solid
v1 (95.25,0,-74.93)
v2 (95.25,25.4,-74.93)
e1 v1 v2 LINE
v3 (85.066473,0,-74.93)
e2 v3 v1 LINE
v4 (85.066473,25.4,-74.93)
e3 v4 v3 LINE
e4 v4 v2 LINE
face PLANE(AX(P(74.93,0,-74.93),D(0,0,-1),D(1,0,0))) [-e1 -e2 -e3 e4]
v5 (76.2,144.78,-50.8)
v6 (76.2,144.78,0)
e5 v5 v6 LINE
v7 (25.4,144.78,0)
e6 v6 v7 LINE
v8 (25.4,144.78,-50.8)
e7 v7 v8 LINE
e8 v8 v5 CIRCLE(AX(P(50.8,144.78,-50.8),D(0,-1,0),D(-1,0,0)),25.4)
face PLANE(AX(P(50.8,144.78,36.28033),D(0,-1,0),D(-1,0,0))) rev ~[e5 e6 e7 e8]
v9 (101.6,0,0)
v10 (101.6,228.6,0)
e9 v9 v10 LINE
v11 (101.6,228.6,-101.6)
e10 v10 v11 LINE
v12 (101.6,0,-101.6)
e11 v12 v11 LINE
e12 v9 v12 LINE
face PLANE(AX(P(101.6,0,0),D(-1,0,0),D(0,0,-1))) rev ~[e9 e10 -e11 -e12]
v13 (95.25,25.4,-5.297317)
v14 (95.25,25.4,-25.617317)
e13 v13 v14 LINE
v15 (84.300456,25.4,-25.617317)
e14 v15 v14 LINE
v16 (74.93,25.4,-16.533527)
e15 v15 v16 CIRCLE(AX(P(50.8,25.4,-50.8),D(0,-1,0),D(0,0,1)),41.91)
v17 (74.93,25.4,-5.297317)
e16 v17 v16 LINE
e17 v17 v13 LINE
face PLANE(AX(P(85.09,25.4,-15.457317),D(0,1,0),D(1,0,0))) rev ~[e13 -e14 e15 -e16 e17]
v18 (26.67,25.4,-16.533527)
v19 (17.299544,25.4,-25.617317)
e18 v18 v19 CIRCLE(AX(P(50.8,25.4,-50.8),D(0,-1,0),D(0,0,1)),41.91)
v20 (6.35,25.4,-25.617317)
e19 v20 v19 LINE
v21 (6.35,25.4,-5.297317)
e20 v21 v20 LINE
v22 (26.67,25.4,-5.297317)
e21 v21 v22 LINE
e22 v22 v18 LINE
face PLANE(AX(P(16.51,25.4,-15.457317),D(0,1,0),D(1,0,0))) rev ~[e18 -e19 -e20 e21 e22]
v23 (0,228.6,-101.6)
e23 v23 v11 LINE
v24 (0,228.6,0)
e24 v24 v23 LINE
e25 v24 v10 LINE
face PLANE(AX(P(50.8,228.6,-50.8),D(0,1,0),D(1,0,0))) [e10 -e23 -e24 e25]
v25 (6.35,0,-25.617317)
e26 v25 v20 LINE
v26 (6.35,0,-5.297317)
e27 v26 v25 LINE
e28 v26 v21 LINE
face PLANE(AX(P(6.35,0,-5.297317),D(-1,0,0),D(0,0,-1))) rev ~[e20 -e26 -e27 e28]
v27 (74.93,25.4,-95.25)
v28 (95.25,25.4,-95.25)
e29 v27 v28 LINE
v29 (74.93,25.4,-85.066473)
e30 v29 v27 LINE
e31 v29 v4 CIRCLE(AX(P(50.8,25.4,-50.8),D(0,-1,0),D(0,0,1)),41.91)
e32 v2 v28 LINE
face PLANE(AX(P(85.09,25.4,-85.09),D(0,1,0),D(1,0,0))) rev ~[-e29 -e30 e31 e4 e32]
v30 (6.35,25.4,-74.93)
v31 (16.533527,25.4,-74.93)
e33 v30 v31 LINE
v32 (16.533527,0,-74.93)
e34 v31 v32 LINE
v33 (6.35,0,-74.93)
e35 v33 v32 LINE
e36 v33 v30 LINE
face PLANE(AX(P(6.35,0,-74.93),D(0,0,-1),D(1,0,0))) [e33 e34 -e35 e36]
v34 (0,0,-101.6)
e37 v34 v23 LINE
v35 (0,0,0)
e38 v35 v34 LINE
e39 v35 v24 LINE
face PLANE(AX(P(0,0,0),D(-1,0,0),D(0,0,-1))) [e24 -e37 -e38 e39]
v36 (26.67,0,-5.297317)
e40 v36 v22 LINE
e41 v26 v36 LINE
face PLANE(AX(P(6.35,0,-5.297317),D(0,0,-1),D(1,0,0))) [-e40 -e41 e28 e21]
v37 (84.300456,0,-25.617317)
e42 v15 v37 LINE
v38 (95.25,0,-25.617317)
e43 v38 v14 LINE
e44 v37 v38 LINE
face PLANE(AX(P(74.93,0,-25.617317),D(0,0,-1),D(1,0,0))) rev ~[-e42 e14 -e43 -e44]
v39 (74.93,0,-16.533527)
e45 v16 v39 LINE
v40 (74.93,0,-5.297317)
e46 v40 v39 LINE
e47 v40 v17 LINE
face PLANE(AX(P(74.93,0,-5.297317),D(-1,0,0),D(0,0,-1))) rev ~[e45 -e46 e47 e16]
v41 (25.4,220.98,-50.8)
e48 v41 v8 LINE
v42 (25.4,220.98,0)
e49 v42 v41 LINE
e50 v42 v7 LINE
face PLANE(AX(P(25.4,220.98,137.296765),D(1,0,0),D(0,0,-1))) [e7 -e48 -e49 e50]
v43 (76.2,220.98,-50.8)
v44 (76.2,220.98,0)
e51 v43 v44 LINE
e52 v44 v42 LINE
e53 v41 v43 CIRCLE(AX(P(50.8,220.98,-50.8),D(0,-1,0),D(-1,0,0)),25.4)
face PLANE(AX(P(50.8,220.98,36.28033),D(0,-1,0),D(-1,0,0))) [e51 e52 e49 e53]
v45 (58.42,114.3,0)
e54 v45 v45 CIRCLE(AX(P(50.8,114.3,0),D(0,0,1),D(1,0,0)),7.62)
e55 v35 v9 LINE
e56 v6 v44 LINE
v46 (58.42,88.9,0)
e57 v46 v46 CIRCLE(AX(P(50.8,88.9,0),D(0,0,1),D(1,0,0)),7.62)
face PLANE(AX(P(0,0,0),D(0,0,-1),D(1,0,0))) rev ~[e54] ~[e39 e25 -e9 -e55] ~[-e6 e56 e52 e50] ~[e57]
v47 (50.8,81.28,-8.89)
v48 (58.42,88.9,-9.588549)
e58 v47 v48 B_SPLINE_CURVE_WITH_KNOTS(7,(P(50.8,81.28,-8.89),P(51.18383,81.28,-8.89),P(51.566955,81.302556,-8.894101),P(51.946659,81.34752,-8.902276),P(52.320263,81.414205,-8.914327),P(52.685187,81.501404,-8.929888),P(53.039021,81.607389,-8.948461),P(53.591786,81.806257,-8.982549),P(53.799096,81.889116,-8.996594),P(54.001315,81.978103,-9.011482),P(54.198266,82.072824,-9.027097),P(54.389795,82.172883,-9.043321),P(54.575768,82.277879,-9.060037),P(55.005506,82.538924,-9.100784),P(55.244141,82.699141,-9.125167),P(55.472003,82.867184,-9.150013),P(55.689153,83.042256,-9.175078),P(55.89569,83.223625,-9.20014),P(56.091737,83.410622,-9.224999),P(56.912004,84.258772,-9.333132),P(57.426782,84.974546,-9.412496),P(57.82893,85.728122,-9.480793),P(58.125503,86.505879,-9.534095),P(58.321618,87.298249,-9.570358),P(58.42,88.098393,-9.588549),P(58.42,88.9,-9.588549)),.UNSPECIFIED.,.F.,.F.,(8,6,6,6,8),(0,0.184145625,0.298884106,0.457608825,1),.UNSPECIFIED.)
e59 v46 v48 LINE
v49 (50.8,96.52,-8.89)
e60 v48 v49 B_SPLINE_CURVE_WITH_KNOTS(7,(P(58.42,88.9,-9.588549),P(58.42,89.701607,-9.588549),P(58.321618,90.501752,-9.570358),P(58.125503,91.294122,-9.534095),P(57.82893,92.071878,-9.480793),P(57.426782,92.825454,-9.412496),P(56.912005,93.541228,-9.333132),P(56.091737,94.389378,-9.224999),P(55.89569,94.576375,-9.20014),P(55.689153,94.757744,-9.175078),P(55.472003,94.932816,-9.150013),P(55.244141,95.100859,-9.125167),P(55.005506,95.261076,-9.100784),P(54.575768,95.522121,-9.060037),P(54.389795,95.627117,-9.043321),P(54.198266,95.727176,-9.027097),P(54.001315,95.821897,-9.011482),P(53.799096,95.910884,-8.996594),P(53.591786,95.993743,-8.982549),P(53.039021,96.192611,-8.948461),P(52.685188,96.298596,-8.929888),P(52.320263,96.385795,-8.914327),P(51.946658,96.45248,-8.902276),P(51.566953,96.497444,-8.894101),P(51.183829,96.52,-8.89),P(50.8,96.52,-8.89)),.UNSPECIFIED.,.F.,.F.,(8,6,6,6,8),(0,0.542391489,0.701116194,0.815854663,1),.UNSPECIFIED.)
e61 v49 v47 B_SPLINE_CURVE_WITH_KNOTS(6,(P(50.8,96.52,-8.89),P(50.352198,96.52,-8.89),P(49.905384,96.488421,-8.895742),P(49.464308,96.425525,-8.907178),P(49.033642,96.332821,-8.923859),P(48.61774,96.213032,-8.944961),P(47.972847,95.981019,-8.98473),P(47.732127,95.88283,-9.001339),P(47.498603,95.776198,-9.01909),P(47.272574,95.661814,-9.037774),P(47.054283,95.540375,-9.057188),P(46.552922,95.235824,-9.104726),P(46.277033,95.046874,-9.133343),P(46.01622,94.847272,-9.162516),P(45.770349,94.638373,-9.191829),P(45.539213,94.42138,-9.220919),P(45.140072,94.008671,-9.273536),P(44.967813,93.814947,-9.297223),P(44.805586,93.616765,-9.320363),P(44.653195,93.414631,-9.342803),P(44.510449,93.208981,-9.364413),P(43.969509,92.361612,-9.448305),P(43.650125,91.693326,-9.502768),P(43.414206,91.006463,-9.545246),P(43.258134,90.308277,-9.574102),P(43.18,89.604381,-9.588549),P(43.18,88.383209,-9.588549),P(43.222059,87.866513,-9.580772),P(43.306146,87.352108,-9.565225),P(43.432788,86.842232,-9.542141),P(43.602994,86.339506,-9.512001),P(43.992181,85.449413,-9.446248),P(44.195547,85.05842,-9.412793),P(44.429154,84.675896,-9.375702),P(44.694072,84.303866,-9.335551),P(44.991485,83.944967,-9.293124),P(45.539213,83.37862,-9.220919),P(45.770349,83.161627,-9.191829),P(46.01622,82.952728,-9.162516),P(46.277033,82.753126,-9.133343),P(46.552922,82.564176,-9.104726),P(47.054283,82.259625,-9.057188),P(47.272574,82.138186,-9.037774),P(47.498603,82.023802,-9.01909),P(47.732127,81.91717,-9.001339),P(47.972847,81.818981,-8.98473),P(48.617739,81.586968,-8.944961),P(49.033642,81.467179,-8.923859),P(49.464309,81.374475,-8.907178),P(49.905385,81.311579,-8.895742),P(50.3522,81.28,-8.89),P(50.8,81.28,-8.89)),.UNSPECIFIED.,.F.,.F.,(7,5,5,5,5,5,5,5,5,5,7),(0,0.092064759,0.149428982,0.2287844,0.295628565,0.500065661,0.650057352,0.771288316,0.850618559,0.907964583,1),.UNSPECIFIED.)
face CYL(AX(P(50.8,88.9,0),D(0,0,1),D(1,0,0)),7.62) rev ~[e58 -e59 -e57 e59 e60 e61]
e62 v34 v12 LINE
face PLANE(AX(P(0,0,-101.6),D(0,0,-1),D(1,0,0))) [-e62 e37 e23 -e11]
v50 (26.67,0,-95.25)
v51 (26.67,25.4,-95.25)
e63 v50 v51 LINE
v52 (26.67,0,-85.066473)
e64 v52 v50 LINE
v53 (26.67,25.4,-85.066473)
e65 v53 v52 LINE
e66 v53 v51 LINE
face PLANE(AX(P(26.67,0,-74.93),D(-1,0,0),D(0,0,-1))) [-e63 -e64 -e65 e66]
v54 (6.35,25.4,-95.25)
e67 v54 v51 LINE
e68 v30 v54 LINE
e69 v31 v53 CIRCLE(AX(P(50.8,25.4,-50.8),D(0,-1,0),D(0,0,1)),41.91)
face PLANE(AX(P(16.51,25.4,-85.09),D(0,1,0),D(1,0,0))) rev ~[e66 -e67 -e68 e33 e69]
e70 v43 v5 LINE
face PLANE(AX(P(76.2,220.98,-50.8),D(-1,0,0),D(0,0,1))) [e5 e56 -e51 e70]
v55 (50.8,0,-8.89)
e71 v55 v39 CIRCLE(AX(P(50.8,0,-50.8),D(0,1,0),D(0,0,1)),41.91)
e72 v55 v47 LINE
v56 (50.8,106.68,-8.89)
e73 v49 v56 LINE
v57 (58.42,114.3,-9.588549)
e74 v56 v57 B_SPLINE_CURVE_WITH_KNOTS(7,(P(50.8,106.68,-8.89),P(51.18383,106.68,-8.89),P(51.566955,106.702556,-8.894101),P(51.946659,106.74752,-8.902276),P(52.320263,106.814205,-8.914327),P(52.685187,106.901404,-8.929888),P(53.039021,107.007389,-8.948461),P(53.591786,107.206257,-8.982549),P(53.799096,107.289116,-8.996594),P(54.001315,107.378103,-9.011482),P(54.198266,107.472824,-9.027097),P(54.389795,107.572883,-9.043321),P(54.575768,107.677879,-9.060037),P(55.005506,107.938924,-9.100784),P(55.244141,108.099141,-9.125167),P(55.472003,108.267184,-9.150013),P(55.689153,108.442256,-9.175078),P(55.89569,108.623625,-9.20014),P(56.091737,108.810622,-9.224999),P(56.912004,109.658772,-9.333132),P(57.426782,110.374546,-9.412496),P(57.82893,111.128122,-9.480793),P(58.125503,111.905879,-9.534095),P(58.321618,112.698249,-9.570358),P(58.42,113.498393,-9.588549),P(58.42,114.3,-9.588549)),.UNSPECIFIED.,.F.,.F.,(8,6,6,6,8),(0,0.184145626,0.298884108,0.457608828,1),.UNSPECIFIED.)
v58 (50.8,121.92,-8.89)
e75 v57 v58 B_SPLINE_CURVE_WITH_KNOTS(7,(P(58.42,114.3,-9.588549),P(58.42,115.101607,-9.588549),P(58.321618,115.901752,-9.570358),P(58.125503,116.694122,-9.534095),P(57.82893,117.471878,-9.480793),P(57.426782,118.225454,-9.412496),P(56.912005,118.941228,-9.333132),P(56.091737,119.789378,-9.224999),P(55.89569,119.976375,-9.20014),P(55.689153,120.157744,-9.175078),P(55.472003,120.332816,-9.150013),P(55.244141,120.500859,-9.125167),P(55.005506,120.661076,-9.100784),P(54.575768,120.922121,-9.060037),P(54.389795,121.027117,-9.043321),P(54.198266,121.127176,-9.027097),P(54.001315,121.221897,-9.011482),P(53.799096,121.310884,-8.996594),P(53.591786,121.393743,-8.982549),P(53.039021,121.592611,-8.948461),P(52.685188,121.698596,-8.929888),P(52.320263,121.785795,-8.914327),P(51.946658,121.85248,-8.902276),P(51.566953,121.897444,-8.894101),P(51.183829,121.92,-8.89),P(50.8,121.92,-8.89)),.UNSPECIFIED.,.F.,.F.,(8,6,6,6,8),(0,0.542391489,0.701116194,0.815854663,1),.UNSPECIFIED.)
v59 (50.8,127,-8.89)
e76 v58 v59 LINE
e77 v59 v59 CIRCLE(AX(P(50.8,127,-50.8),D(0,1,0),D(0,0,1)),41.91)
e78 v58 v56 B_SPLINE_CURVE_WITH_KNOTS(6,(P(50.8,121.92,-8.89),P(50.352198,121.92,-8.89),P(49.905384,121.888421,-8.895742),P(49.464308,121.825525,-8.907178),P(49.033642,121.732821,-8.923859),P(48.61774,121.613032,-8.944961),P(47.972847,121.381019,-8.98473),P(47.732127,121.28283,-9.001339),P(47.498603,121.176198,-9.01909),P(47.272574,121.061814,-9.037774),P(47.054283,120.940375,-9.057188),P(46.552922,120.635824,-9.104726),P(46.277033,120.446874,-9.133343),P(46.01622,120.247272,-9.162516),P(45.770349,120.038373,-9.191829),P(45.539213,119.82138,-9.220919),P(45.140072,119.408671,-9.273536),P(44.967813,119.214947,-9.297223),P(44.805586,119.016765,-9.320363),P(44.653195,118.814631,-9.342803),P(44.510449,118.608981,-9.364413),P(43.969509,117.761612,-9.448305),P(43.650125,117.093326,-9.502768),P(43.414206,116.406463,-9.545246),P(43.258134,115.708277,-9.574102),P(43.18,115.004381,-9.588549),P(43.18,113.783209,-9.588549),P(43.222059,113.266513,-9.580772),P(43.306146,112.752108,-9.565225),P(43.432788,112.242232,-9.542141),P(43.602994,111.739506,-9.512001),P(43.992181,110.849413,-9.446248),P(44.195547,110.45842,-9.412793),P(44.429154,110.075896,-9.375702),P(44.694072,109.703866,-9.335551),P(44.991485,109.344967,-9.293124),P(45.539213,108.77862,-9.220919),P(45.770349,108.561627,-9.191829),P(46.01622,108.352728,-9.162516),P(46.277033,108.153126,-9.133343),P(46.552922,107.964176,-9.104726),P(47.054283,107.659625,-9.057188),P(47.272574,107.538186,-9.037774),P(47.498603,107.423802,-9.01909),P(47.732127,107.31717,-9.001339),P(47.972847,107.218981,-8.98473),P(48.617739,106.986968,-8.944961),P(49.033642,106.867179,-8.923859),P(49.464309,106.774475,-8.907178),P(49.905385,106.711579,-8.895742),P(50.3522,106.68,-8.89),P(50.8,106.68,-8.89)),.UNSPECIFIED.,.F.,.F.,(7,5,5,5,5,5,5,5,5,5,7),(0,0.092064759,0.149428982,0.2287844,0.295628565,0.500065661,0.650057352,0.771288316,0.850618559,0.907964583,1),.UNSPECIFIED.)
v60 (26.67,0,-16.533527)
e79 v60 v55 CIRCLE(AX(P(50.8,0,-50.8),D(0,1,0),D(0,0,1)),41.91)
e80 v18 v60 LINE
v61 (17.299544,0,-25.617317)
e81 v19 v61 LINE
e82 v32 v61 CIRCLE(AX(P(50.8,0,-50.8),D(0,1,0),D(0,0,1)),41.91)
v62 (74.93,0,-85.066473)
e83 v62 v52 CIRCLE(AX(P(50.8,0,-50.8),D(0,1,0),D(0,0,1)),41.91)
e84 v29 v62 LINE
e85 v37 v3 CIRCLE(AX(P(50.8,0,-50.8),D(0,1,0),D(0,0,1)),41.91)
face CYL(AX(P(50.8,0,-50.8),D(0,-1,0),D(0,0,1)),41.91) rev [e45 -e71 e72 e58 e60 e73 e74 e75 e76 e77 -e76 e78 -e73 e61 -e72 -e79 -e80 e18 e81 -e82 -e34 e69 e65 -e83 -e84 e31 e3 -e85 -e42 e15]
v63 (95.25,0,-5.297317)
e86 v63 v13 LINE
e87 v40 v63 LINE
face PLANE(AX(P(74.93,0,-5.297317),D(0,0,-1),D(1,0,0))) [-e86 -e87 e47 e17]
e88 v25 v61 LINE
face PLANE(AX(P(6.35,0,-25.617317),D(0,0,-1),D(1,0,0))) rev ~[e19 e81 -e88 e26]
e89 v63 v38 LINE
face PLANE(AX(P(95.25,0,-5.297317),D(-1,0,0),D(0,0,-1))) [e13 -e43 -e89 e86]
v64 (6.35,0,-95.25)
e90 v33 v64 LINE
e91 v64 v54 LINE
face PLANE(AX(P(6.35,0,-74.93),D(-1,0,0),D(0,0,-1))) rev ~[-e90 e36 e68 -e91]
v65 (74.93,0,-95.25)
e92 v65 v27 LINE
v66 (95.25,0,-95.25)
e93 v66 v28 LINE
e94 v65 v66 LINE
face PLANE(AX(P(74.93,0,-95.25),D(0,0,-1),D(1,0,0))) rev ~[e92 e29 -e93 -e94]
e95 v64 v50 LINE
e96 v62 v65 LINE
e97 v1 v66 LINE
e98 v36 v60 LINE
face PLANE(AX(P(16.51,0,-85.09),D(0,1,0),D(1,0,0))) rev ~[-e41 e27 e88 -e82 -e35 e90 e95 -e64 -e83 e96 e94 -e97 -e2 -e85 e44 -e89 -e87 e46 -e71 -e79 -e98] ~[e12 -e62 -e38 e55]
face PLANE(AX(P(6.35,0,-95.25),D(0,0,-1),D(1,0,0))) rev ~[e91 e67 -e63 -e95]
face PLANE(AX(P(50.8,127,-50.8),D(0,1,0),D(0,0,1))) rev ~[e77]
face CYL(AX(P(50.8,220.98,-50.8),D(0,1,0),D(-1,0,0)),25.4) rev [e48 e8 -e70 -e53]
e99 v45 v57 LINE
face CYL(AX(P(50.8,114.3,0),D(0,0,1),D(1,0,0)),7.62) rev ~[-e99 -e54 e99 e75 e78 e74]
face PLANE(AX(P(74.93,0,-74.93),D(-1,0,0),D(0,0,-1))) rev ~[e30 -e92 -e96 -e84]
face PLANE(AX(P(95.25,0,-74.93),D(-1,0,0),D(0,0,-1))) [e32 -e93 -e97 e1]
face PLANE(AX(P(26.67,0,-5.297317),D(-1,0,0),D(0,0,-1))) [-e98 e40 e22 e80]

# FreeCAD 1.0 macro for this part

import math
import FreeCAD as App
import Part
import Sketcher
Q = App.Units.Quantity


def add_polygon(sketch, points):
    """Adds a closed chain of lines whose ends are joined by coincident constraints."""
    first, n = sketch.GeometryCount, len(points)
    for a, b in zip(points, points[1:] + points[:1]):
        sketch.addGeometry(Part.LineSegment(App.Vector(*a, 0), App.Vector(*b, 0)), False)
    for i in range(n):
        sketch.addConstraint(Sketcher.Constraint("Coincident", first + i, 2, first + (i + 1) % n, 1))

doc = App.newDocument("Part")
body = doc.addObject("PartDesign::Body", "Body")

# Sketch on XZ plane
sketch1 = doc.addObject("Sketcher::SketchObject", "Sketch")
body.addObject(sketch1)
sketch1.AttachmentSupport = (doc.XZ_Plane, [""])
sketch1.MapMode = "FlatFace"
add_polygon(sketch1, [(0, -101.6), (0, 0), (101.6, 0), (101.6, -101.6)])  # lines 0-3
sketch1.addConstraint([
    Sketcher.Constraint("Vertical", 0),
    Sketcher.Constraint("Horizontal", 1),
    Sketcher.Constraint("Vertical", 2),
    Sketcher.Constraint("Horizontal", 3),
    Sketcher.Constraint("Coincident", 0, 2, -1, 1),
    Sketcher.Constraint("Equal", 3, 0),
    Sketcher.Constraint("DistanceX", 1, 1, 1, 2, Q("4 in")),
])
pad1 = doc.addObject("PartDesign::Pad", "Pad")
body.addObject(pad1)
pad1.Profile = sketch1
pad1.Length = Q("9 in")
pad1.Reversed = True

# Sketch on XZ plane
sketch2 = doc.addObject("Sketcher::SketchObject", "Sketch001")
body.addObject(sketch2)
sketch2.AttachmentSupport = (doc.XZ_Plane, [""])
sketch2.MapMode = "FlatFace"
sketch2.addGeometry(Part.Circle(App.Vector(50.8, -50.8, 0), App.Vector(0, 0, 1), 41.91), False)
sketch2.addConstraint([
    Sketcher.Constraint("Diameter", 0, Q("3.3 in")),
    Sketcher.Constraint("DistanceX", -1, 1, 0, 3, Q("2 in")),
    Sketcher.Constraint("DistanceY", 0, 3, -1, 1, Q("2 in")),
])
pocket1 = doc.addObject("PartDesign::Pocket", "Pocket")
body.addObject(pocket1)
pocket1.Profile = sketch2
pocket1.Length = Q("5 in")

# Sketch on XZ plane
sketch3 = doc.addObject("Sketcher::SketchObject", "Sketch002")
body.addObject(sketch3)
sketch3.AttachmentSupport = (doc.XZ_Plane, [""])
sketch3.MapMode = "FlatFace"
add_polygon(sketch3, [(6.35, -25.617317), (6.35, -5.297317), (26.67, -5.297317), (26.67, -25.617317)])  # lines 0-3
add_polygon(sketch3, [(74.93, -25.617317), (74.93, -5.297317), (95.25, -5.297317), (95.25, -25.617317)])  # lines 4-7
add_polygon(sketch3, [(74.93, -95.25), (74.93, -74.93), (95.25, -74.93), (95.25, -95.25)])  # lines 8-11
add_polygon(sketch3, [(6.35, -95.25), (6.35, -74.93), (26.67, -74.93), (26.67, -95.25)])  # lines 12-15
sketch3.addConstraint([
    Sketcher.Constraint("Vertical", 0),
    Sketcher.Constraint("Horizontal", 1),
    Sketcher.Constraint("Vertical", 2),
    Sketcher.Constraint("Horizontal", 3),
    Sketcher.Constraint("Vertical", 4),
    Sketcher.Constraint("Horizontal", 5),
    Sketcher.Constraint("Vertical", 6),
    Sketcher.Constraint("Horizontal", 7),
    Sketcher.Constraint("Vertical", 8),
    Sketcher.Constraint("Horizontal", 9),
    Sketcher.Constraint("Vertical", 10),
    Sketcher.Constraint("Horizontal", 11),
    Sketcher.Constraint("Vertical", 12),
    Sketcher.Constraint("Horizontal", 13),
    Sketcher.Constraint("Vertical", 14),
    Sketcher.Constraint("Horizontal", 15),
    Sketcher.Constraint("Horizontal", 1, 2, 4, 2),
    Sketcher.Constraint("Horizontal", 3, 2, 6, 2),
    Sketcher.Constraint("Horizontal", 9, 2, 12, 2),
    Sketcher.Constraint("Horizontal", 11, 2, 14, 2),
    Sketcher.Constraint("Vertical", 7, 2, 8, 2),
    Sketcher.Constraint("Vertical", 6, 2, 9, 2),
    Sketcher.Constraint("Vertical", 3, 2, 12, 2),
    Sketcher.Constraint("Vertical", 2, 2, 13, 2),
    Sketcher.Constraint("Equal", 3, 5),
    Sketcher.Constraint("Equal", 15, 0),
    Sketcher.Constraint("Equal", 6, 8),
    Sketcher.Constraint("DistanceX", 1, 1, 1, 2, Q("0.8 in")),
    Sketcher.Constraint("DistanceX", 1, 2, 4, 2, Q("1.9 in")),
    Sketcher.Constraint("DistanceX", -1, 1, 0, 2, Q("0.25 in")),
    Sketcher.Constraint("DistanceY", 8, 2, -1, 1, Q("2.95 in")),
    Sketcher.Constraint("DistanceY", 0, 2, -1, 1, 5.297317),
])
pocket2 = doc.addObject("PartDesign::Pocket", "Pocket001")
body.addObject(pocket2)
pocket2.Profile = sketch3
pocket2.Length = Q("1 in")

# Sketch on XZ plane
sketch4 = doc.addObject("Sketcher::SketchObject", "Sketch003")
body.addObject(sketch4)
sketch4.AttachmentSupport = (doc.XZ_Plane, [""])
sketch4.MapMode = "FlatFace"
sketch4.AttachmentOffset = App.Placement(App.Vector(0, 0, -8.7 * 25.4), App.Rotation())
sketch4.addGeometry([
    Part.LineSegment(App.Vector(76.2, 137.296765, 0), App.Vector(76.2, -50.8, 0)),
    Part.ArcOfCircle(Part.Circle(App.Vector(50.8, -50.8, 0), App.Vector(0, 0, 1), 25.4), math.radians(180), math.radians(360)),
    Part.LineSegment(App.Vector(25.4, -50.8, 0), App.Vector(25.4, 137.296765, 0)),
    Part.LineSegment(App.Vector(25.4, 137.296765, 0), App.Vector(76.2, 137.296765, 0)),
], False)
sketch4.addConstraint([
    Sketcher.Constraint("Tangent", 0, 2, 1, 2),
    Sketcher.Constraint("Tangent", 1, 1, 2, 1),
    Sketcher.Constraint("Coincident", 2, 2, 3, 1),
    Sketcher.Constraint("Coincident", 3, 2, 0, 1),
    Sketcher.Constraint("Vertical", 0),
    Sketcher.Constraint("Vertical", 2),
    Sketcher.Constraint("Horizontal", 3),
    Sketcher.Constraint("Radius", 1, Q("1 in")),
    Sketcher.Constraint("DistanceX", -1, 1, 1, 3, Q("2 in")),
    Sketcher.Constraint("DistanceY", 1, 3, -1, 1, Q("2 in")),
    Sketcher.Constraint("DistanceY", 0, 2, 0, 1, 188.096765),
])
pocket3 = doc.addObject("PartDesign::Pocket", "Pocket002")
body.addObject(pocket3)
pocket3.Profile = sketch4
pocket3.Length = Q("3 in")
pocket3.Reversed = True

# Sketch on XY plane
sketch5 = doc.addObject("Sketcher::SketchObject", "Sketch004")
body.addObject(sketch5)
sketch5.AttachmentSupport = (doc.XY_Plane, [""])
sketch5.MapMode = "FlatFace"
sketch5.addGeometry([
    Part.Circle(App.Vector(50.8, 114.3, 0), App.Vector(0, 0, 1), 7.62),
    Part.Circle(App.Vector(50.8, 88.9, 0), App.Vector(0, 0, 1), 7.62),
], False)
sketch5.addConstraint([
    Sketcher.Constraint("Equal", 0, 1),
    Sketcher.Constraint("Vertical", 0, 3, 1, 3),
    Sketcher.Constraint("Diameter", 0, Q("0.6 in")),
    Sketcher.Constraint("DistanceX", -1, 1, 0, 3, Q("2 in")),
    Sketcher.Constraint("DistanceY", 1, 3, 0, 3, Q("1 in")),
    Sketcher.Constraint("DistanceY", -1, 1, 0, 3, Q("4.5 in")),
])
pocket4 = doc.addObject("PartDesign::Pocket", "Pocket003")
body.addObject(pocket4)
pocket4.Profile = sketch5
pocket4.Length = Q("2.23 in")

doc.recompute()
